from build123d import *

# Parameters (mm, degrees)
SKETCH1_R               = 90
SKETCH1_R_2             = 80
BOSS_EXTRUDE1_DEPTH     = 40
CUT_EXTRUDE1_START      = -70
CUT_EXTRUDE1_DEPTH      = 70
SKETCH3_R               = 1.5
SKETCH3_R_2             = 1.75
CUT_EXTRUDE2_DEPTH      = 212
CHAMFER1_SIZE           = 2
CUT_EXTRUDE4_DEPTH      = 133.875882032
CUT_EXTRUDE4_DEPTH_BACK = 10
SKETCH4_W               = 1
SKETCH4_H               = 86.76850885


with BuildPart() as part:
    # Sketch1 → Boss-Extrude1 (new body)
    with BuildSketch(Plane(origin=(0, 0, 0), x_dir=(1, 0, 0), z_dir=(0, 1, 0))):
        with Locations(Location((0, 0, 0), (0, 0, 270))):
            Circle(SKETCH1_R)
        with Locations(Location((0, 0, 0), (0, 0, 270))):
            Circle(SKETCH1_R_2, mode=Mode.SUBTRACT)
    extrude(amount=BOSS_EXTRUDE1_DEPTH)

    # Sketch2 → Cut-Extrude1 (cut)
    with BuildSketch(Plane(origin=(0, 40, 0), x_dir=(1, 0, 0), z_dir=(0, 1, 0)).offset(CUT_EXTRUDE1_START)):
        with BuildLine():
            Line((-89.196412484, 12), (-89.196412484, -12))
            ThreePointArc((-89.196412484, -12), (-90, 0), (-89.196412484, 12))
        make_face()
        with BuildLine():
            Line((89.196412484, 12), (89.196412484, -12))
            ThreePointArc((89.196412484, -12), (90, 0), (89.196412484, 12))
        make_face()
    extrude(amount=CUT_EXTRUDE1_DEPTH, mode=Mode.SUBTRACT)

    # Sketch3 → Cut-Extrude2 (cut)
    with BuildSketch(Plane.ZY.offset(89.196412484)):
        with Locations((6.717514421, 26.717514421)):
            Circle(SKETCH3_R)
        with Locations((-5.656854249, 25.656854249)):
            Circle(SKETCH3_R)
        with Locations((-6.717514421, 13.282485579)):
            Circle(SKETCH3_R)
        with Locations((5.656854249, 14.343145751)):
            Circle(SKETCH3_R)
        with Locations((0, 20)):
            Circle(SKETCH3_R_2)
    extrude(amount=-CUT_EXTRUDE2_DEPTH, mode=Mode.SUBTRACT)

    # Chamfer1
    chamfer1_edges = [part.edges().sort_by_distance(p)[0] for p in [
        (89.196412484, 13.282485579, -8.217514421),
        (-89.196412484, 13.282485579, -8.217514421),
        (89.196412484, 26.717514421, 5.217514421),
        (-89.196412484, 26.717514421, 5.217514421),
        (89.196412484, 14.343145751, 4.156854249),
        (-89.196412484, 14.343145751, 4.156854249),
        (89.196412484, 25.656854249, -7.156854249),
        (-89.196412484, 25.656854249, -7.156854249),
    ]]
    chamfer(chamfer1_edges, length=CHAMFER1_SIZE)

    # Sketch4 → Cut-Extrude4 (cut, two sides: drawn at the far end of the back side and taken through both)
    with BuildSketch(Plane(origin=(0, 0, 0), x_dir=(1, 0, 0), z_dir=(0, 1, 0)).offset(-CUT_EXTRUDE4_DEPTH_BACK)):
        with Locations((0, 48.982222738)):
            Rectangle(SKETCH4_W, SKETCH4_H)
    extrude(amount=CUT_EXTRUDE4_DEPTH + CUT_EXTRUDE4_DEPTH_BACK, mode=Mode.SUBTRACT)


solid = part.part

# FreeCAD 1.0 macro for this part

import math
import FreeCAD as App
import Part
import Sketcher
from FreeCAD import Vector
Q = App.Units.Quantity


def edges_at(feature, points):
    """Names of the edges that pass closest to the given points."""
    edges = feature.Shape.Edges
    near = lambda p: min(range(len(edges)), key=lambda i: edges[i].distToShape(Part.Vertex(*p))[0])
    return sorted({f"Edge{near(p) + 1}" for p in points})

doc = App.newDocument("Part")
body = doc.addObject("PartDesign::Body", "Body")

# Sketch on XZ plane
sketch1 = body.newObject("Sketcher::SketchObject", "Sketch")
sketch1.AttachmentSupport = (doc.getObject("XZ_Plane"), [""])
sketch1.MapMode = "FlatFace"
sketch1.addGeometry([
    Part.Circle(Vector(0, 0, 0), Vector(0, 0, 1), 90),
    Part.Circle(Vector(0, 0, 0), Vector(0, 0, 1), 80),
], False)
sketch1.addConstraint([
    Sketcher.Constraint("Coincident", 0, 3, -1, 1),
    Sketcher.Constraint("Coincident", 1, 3, -1, 1),
    Sketcher.Constraint("Diameter", 0, Q("180 mm")),
    Sketcher.Constraint("Diameter", 1, Q("160 mm")),
])
pad1 = body.newObject("PartDesign::Pad", "Pad")
pad1.Profile = sketch1
pad1.Length = 40
pad1.Reversed = True

# Sketch on XZ plane
sketch2 = body.newObject("Sketcher::SketchObject", "Sketch001")
sketch2.AttachmentSupport = (doc.getObject("XZ_Plane"), [""])
sketch2.MapMode = "FlatFace"
sketch2.AttachmentOffset = App.Placement(Vector(0, 0, 30), App.Rotation())
sketch2.addGeometry([
    Part.LineSegment(Vector(-89, 12, 0), Vector(-89, -12, 0)),
    Part.ArcOfCircle(Part.Circle(Vector(0, 0, 0), Vector(0, 0, 1), 90), math.radians(172.34), math.radians(187.66)),
    Part.LineSegment(Vector(89, -12, 0), Vector(89, 12, 0)),
    Part.ArcOfCircle(Part.Circle(Vector(0, 0, 0), Vector(0, 0, 1), 90), math.radians(-7.66), math.radians(7.66)),
], False)
sketch2.addConstraint([
    Sketcher.Constraint("Coincident", 0, 1, 1, 1),
    Sketcher.Constraint("Coincident", 1, 2, 0, 2),
    Sketcher.Constraint("Coincident", 2, 1, 3, 1),
    Sketcher.Constraint("Coincident", 3, 2, 2, 2),
    Sketcher.Constraint("Vertical", 0),
    Sketcher.Constraint("Vertical", 2),
    Sketcher.Constraint("Coincident", 1, 3, -1, 1),
    Sketcher.Constraint("Coincident", 3, 3, -1, 1),
    Sketcher.Constraint("Equal", 1, 3),
    Sketcher.Constraint("Horizontal", 1, 2, 2, 1),
    Sketcher.Constraint("Radius", 1, Q("90 mm")),
    Sketcher.Constraint("DistanceY", 0, 2, 0, 1, Q("24 mm")),
])
pocket1 = body.newObject("PartDesign::Pocket", "Pocket")
pocket1.Profile = sketch2
pocket1.Length = 70

# Sketch on YZ plane
sketch3 = body.newObject("Sketcher::SketchObject", "Sketch002")
sketch3.AttachmentSupport = (doc.getObject("YZ_Plane"), [""])
sketch3.MapMode = "FlatFace"
sketch3.AttachmentOffset = App.Placement(Vector(0, 0, -89.196412), App.Rotation())
sketch3.addGeometry([
    Part.Circle(Vector(26.7, 6.7, 0), Vector(0, 0, 1), 1.5),  # 0
    Part.Circle(Vector(25.7, -5.7, 0), Vector(0, 0, 1), 1.5),  # 1
    Part.Circle(Vector(13.3, -6.7, 0), Vector(0, 0, 1), 1.5),  # 2
    Part.Circle(Vector(14.3, 5.7, 0), Vector(0, 0, 1), 1.5),  # 3
    Part.Circle(Vector(20, 0, 0), Vector(0, 0, 1), 1.8),  # 4
], False)
sketch3.addConstraint([
    Sketcher.Constraint("Equal", 0, 1),
    Sketcher.Constraint("Equal", 1, 2),
    Sketcher.Constraint("Equal", 2, 3),
    Sketcher.Constraint("PointOnObject", 4, 3, -1),
    Sketcher.Constraint("Diameter", 0, Q("3 mm")),
    Sketcher.Constraint("Diameter", 4, Q("3.5 mm")),
    Sketcher.Constraint("DistanceX", -1, 1, 4, 3, Q("20 mm")),
    Sketcher.Constraint("DistanceX", 1, 3, 0, 3, Q("1.06066 mm")),
    Sketcher.Constraint("DistanceY", 1, 3, 0, 3, Q("12.374369 mm")),
    Sketcher.Constraint("DistanceX", 2, 3, 1, 3, Q("12.374369 mm")),
    Sketcher.Constraint("DistanceY", 2, 3, 1, 3, Q("1.06066 mm")),
    Sketcher.Constraint("DistanceX", 2, 3, 3, 3, Q("1.06066 mm")),
    Sketcher.Constraint("DistanceY", 2, 3, 3, 3, Q("12.374369 mm")),
    Sketcher.Constraint("DistanceX", -1, 1, 0, 3, Q("26.717514 mm")),
    Sketcher.Constraint("DistanceY", -1, 1, 0, 3, Q("6.717514 mm")),
])
pocket2 = body.newObject("PartDesign::Pocket", "Pocket001")
pocket2.Profile = sketch3
pocket2.Length = 212
pocket2.Reversed = True
doc.recompute()

chamfer = body.newObject("PartDesign::Chamfer", "Chamfer")
chamfer.Base = (pocket2, edges_at(pocket2, [
    (89.196, 13.282, -8.218),
    (-89.196, 13.282, -8.218),
    (89.196, 26.718, 5.218),
    (-89.196, 26.718, 5.218),
    (89.196, 14.343, 4.157),
    (-89.196, 14.343, 4.157),
    (89.196, 25.657, -7.157),
    (-89.196, 25.657, -7.157),
]))
chamfer.Size = 2

# Sketch on XZ plane
sketch4 = body.newObject("Sketcher::SketchObject", "Sketch003")
sketch4.AttachmentSupport = (doc.getObject("XZ_Plane"), [""])
sketch4.MapMode = "FlatFace"
sketch4.addGeometry([
    Part.LineSegment(Vector(-0.5, -92.4, 0), Vector(-0.5, -5.6, 0)),
    Part.LineSegment(Vector(-0.5, -5.6, 0), Vector(0.5, -5.6, 0)),
    Part.LineSegment(Vector(0.5, -5.6, 0), Vector(0.5, -92.4, 0)),
    Part.LineSegment(Vector(0.5, -92.4, 0), Vector(-0.5, -92.4, 0)),
], False)
sketch4.addConstraint([
    Sketcher.Constraint("Coincident", 0, 2, 1, 1),
    Sketcher.Constraint("Coincident", 1, 2, 2, 1),
    Sketcher.Constraint("Coincident", 2, 2, 3, 1),
    Sketcher.Constraint("Coincident", 3, 2, 0, 1),
    Sketcher.Constraint("Vertical", 0),
    Sketcher.Constraint("Horizontal", 1),
    Sketcher.Constraint("Vertical", 2),
    Sketcher.Constraint("Horizontal", 3),
    Sketcher.Constraint("DistanceX", 1, 1, 1, 2, Q("1 mm")),
    Sketcher.Constraint("DistanceX", 0, 2, -1, 1, Q("0.5 mm")),
    Sketcher.Constraint("DistanceY", 0, 1, 0, 2, Q("86.768509 mm")),
    Sketcher.Constraint("DistanceY", 0, 2, -1, 1, Q("5.597968 mm")),
])
pocket3 = body.newObject("PartDesign::Pocket", "Pocket002")
pocket3.Profile = sketch4
pocket3.Type = "ThroughAll"
pocket3.Midplane = True

doc.recompute()
